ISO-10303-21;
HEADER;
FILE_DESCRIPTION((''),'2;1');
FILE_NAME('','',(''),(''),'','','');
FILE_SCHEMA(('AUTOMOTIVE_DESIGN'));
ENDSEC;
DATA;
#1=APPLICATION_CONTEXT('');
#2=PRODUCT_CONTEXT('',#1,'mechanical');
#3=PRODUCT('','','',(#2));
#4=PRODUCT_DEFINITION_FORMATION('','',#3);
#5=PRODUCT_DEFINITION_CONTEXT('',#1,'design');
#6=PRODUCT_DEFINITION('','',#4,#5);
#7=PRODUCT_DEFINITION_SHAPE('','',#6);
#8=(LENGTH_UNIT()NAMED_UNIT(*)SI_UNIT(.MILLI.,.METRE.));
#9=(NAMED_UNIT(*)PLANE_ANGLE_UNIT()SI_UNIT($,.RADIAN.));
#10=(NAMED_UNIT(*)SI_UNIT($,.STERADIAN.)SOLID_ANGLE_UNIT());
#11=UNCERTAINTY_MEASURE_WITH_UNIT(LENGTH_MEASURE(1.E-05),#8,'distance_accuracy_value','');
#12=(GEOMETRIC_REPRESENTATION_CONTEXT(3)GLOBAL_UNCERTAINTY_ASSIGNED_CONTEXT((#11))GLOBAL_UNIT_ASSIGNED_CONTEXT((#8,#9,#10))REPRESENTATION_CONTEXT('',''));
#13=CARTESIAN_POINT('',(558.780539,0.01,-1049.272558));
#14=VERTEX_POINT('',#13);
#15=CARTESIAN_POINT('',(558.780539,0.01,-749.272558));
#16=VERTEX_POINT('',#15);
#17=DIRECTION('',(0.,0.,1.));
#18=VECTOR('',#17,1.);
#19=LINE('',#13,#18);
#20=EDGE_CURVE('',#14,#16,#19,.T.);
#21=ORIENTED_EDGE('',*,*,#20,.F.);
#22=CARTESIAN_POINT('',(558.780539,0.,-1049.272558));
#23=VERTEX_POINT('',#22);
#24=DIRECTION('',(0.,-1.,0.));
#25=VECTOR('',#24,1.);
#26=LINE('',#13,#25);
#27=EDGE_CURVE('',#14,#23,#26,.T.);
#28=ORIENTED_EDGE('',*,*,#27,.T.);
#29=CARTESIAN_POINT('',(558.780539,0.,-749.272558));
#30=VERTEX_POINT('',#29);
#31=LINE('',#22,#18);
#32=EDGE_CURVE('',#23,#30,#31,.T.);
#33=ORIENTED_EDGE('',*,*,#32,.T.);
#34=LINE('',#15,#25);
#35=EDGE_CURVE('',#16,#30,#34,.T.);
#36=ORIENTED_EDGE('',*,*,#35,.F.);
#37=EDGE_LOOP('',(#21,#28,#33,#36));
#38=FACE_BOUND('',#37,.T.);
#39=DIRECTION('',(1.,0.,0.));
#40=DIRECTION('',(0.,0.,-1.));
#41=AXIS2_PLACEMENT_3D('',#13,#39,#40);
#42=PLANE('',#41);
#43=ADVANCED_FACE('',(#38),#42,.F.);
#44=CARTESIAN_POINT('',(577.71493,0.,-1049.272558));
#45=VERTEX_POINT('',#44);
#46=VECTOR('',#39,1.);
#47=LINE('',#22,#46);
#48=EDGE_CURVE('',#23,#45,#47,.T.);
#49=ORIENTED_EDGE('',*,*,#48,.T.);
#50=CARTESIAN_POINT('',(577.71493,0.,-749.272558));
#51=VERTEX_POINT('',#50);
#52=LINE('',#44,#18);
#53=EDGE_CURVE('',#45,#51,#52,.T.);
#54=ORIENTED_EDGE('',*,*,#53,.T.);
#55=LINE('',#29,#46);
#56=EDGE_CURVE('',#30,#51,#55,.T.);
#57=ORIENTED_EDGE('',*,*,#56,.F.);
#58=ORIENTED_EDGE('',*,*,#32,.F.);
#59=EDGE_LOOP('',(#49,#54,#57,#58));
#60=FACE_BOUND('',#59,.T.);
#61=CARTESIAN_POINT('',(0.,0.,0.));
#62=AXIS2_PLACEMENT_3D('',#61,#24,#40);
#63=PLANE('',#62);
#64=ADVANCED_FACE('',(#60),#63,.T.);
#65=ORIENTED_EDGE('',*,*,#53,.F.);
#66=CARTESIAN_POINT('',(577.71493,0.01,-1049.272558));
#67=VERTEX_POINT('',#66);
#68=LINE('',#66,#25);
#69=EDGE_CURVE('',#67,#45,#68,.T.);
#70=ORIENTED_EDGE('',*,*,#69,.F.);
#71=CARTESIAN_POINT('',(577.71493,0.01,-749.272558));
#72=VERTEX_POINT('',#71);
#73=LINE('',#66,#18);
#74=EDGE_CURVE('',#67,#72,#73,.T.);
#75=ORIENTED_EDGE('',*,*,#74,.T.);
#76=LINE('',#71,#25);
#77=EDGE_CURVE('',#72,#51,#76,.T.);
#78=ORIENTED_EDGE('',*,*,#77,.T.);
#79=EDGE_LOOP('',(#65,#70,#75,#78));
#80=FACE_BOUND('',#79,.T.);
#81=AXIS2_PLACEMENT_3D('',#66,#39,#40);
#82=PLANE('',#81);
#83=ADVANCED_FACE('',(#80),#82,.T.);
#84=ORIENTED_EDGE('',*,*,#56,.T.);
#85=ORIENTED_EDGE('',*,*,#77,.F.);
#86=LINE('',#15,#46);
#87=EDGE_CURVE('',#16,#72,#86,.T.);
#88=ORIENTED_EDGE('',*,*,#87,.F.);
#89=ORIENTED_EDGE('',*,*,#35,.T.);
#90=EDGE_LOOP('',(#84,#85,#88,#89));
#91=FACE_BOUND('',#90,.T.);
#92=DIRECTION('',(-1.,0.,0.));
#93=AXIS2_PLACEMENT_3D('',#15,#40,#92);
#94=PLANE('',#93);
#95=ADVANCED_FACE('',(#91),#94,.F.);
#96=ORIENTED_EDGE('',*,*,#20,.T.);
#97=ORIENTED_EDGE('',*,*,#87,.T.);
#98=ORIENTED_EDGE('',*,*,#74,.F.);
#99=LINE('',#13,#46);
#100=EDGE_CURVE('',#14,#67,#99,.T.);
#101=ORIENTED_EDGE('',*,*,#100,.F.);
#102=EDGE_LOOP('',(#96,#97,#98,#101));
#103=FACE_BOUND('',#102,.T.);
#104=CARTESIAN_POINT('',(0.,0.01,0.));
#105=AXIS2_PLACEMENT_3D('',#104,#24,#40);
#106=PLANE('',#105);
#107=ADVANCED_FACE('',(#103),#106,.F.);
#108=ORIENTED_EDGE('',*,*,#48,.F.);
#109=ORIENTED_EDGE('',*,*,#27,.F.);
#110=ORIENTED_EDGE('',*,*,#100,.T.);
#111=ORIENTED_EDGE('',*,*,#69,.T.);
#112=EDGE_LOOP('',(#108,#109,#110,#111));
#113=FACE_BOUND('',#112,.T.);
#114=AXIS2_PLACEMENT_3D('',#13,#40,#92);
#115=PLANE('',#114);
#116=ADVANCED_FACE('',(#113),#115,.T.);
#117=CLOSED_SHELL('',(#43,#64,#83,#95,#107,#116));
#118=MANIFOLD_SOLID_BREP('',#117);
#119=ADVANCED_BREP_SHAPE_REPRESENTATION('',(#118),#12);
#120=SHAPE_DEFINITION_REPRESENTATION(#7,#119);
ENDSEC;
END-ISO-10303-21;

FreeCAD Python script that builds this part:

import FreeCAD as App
import Part
import Sketcher
from FreeCAD import Vector

doc = App.newDocument("Part")
params = doc.addObject("Spreadsheet::Sheet", "Params")
for row, (alias, value) in enumerate([
    ("sketch1_height", "300 mm"),
    ("pad1_length", "0.01 mm"),
], start=1):
    params.set(f"A{row}", alias)
    params.set(f"B{row}", "=" + value)
    params.setAlias(f"B{row}", alias)

body = doc.addObject("PartDesign::Body", "Body")

sketch1 = body.newObject("Sketcher::SketchObject", "Sketch")
sketch1.AttachmentSupport = (doc.getObject("XZ_Plane"), [""])
sketch1.MapMode = "FlatFace"
sketch1.addGeometry(Part.LineSegment(Vector(558.780539, -1049.272558, 0), Vector(558.780539, -749.272558, 0)), False)
sketch1.addGeometry(Part.LineSegment(Vector(558.780539, -749.272558, 0), Vector(577.71493, -749.272558, 0)), False)
sketch1.addGeometry(Part.LineSegment(Vector(577.71493, -749.272558, 0), Vector(577.71493, -1049.272558, 0)), False)
sketch1.addGeometry(Part.LineSegment(Vector(577.71493, -1049.272558, 0), Vector(558.780539, -1049.272558, 0)), False)
sketch1.addConstraint(Sketcher.Constraint("Coincident", 0, 2, 1, 1))
sketch1.addConstraint(Sketcher.Constraint("Coincident", 1, 2, 2, 1))
sketch1.addConstraint(Sketcher.Constraint("Coincident", 2, 2, 3, 1))
sketch1.addConstraint(Sketcher.Constraint("Coincident", 3, 2, 0, 1))
sketch1.addConstraint(Sketcher.Constraint("Vertical", 0))
sketch1.addConstraint(Sketcher.Constraint("Horizontal", 1))
sketch1.addConstraint(Sketcher.Constraint("Vertical", 2))
sketch1.addConstraint(Sketcher.Constraint("Horizontal", 3))
sketch1.addConstraint(Sketcher.Constraint("DistanceY", 0, 1, 0, 2, 300.0))
sketch1.addConstraint(Sketcher.Constraint("DistanceX", 1, 1, 1, 2, 18.934391))
sketch1.addConstraint(Sketcher.Constraint("DistanceX", -1, 1, 0, 2, 558.780539))
sketch1.addConstraint(Sketcher.Constraint("DistanceY", 0, 2, -1, 1, 749.272558))
sketch1.setExpression("Constraints[8]", "Params.sketch1_height")
pad1 = body.newObject("PartDesign::Pad", "Pad")
pad1.Profile = sketch1
pad1.setExpression("Length", "Params.pad1_length")
pad1.Reversed = True

doc.recompute()
